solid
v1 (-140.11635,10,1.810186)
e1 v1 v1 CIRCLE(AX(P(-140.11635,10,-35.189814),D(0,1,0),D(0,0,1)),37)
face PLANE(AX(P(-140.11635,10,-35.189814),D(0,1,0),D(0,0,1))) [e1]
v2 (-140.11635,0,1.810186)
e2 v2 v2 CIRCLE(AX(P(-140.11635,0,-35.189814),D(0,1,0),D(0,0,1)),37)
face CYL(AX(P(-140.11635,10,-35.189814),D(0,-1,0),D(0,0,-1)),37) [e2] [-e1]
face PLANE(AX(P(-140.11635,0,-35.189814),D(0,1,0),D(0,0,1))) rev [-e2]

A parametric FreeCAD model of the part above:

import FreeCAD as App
import Part
import Sketcher

V = App.Vector
Q = App.Units.Quantity

doc = App.newDocument("Part")
params = doc.addObject("Spreadsheet::Sheet", "Params")
for row, (alias, value) in enumerate([
    ("sketch1_diameter", "74 mm"),
    ("pad1_length", "10 mm"),
], start=1):
    params.set(f"A{row}", alias)
    params.set(f"B{row}", "=" + value)
    params.setAlias(f"B{row}", alias)

body = doc.addObject("PartDesign::Body", "Body")

# Sketch on XZ plane
sketch1 = body.newObject("Sketcher::SketchObject", "Sketch")
sketch1.AttachmentSupport = (doc.getObject("XZ_Plane"), [""])
sketch1.MapMode = "FlatFace"
sketch1.addGeometry(Part.Circle(V(-140.11635, -35.189814, 0), V(0, 0, 1), 37), False)
sketch1.addConstraint([
    Sketcher.Constraint("Diameter", 0, Q("74 mm")),
    Sketcher.Constraint("DistanceX", 0, 3, -1, 1, Q("140.11635 mm")),
    Sketcher.Constraint("DistanceY", 0, 3, -1, 1, Q("35.189814 mm")),
])
sketch1.setExpression("Constraints[0]", "Params.sketch1_diameter")
pad1 = body.newObject("PartDesign::Pad", "Pad")
pad1.Profile = sketch1
pad1.setExpression("Length", "Params.pad1_length")
pad1.Reversed = True

doc.recompute()
